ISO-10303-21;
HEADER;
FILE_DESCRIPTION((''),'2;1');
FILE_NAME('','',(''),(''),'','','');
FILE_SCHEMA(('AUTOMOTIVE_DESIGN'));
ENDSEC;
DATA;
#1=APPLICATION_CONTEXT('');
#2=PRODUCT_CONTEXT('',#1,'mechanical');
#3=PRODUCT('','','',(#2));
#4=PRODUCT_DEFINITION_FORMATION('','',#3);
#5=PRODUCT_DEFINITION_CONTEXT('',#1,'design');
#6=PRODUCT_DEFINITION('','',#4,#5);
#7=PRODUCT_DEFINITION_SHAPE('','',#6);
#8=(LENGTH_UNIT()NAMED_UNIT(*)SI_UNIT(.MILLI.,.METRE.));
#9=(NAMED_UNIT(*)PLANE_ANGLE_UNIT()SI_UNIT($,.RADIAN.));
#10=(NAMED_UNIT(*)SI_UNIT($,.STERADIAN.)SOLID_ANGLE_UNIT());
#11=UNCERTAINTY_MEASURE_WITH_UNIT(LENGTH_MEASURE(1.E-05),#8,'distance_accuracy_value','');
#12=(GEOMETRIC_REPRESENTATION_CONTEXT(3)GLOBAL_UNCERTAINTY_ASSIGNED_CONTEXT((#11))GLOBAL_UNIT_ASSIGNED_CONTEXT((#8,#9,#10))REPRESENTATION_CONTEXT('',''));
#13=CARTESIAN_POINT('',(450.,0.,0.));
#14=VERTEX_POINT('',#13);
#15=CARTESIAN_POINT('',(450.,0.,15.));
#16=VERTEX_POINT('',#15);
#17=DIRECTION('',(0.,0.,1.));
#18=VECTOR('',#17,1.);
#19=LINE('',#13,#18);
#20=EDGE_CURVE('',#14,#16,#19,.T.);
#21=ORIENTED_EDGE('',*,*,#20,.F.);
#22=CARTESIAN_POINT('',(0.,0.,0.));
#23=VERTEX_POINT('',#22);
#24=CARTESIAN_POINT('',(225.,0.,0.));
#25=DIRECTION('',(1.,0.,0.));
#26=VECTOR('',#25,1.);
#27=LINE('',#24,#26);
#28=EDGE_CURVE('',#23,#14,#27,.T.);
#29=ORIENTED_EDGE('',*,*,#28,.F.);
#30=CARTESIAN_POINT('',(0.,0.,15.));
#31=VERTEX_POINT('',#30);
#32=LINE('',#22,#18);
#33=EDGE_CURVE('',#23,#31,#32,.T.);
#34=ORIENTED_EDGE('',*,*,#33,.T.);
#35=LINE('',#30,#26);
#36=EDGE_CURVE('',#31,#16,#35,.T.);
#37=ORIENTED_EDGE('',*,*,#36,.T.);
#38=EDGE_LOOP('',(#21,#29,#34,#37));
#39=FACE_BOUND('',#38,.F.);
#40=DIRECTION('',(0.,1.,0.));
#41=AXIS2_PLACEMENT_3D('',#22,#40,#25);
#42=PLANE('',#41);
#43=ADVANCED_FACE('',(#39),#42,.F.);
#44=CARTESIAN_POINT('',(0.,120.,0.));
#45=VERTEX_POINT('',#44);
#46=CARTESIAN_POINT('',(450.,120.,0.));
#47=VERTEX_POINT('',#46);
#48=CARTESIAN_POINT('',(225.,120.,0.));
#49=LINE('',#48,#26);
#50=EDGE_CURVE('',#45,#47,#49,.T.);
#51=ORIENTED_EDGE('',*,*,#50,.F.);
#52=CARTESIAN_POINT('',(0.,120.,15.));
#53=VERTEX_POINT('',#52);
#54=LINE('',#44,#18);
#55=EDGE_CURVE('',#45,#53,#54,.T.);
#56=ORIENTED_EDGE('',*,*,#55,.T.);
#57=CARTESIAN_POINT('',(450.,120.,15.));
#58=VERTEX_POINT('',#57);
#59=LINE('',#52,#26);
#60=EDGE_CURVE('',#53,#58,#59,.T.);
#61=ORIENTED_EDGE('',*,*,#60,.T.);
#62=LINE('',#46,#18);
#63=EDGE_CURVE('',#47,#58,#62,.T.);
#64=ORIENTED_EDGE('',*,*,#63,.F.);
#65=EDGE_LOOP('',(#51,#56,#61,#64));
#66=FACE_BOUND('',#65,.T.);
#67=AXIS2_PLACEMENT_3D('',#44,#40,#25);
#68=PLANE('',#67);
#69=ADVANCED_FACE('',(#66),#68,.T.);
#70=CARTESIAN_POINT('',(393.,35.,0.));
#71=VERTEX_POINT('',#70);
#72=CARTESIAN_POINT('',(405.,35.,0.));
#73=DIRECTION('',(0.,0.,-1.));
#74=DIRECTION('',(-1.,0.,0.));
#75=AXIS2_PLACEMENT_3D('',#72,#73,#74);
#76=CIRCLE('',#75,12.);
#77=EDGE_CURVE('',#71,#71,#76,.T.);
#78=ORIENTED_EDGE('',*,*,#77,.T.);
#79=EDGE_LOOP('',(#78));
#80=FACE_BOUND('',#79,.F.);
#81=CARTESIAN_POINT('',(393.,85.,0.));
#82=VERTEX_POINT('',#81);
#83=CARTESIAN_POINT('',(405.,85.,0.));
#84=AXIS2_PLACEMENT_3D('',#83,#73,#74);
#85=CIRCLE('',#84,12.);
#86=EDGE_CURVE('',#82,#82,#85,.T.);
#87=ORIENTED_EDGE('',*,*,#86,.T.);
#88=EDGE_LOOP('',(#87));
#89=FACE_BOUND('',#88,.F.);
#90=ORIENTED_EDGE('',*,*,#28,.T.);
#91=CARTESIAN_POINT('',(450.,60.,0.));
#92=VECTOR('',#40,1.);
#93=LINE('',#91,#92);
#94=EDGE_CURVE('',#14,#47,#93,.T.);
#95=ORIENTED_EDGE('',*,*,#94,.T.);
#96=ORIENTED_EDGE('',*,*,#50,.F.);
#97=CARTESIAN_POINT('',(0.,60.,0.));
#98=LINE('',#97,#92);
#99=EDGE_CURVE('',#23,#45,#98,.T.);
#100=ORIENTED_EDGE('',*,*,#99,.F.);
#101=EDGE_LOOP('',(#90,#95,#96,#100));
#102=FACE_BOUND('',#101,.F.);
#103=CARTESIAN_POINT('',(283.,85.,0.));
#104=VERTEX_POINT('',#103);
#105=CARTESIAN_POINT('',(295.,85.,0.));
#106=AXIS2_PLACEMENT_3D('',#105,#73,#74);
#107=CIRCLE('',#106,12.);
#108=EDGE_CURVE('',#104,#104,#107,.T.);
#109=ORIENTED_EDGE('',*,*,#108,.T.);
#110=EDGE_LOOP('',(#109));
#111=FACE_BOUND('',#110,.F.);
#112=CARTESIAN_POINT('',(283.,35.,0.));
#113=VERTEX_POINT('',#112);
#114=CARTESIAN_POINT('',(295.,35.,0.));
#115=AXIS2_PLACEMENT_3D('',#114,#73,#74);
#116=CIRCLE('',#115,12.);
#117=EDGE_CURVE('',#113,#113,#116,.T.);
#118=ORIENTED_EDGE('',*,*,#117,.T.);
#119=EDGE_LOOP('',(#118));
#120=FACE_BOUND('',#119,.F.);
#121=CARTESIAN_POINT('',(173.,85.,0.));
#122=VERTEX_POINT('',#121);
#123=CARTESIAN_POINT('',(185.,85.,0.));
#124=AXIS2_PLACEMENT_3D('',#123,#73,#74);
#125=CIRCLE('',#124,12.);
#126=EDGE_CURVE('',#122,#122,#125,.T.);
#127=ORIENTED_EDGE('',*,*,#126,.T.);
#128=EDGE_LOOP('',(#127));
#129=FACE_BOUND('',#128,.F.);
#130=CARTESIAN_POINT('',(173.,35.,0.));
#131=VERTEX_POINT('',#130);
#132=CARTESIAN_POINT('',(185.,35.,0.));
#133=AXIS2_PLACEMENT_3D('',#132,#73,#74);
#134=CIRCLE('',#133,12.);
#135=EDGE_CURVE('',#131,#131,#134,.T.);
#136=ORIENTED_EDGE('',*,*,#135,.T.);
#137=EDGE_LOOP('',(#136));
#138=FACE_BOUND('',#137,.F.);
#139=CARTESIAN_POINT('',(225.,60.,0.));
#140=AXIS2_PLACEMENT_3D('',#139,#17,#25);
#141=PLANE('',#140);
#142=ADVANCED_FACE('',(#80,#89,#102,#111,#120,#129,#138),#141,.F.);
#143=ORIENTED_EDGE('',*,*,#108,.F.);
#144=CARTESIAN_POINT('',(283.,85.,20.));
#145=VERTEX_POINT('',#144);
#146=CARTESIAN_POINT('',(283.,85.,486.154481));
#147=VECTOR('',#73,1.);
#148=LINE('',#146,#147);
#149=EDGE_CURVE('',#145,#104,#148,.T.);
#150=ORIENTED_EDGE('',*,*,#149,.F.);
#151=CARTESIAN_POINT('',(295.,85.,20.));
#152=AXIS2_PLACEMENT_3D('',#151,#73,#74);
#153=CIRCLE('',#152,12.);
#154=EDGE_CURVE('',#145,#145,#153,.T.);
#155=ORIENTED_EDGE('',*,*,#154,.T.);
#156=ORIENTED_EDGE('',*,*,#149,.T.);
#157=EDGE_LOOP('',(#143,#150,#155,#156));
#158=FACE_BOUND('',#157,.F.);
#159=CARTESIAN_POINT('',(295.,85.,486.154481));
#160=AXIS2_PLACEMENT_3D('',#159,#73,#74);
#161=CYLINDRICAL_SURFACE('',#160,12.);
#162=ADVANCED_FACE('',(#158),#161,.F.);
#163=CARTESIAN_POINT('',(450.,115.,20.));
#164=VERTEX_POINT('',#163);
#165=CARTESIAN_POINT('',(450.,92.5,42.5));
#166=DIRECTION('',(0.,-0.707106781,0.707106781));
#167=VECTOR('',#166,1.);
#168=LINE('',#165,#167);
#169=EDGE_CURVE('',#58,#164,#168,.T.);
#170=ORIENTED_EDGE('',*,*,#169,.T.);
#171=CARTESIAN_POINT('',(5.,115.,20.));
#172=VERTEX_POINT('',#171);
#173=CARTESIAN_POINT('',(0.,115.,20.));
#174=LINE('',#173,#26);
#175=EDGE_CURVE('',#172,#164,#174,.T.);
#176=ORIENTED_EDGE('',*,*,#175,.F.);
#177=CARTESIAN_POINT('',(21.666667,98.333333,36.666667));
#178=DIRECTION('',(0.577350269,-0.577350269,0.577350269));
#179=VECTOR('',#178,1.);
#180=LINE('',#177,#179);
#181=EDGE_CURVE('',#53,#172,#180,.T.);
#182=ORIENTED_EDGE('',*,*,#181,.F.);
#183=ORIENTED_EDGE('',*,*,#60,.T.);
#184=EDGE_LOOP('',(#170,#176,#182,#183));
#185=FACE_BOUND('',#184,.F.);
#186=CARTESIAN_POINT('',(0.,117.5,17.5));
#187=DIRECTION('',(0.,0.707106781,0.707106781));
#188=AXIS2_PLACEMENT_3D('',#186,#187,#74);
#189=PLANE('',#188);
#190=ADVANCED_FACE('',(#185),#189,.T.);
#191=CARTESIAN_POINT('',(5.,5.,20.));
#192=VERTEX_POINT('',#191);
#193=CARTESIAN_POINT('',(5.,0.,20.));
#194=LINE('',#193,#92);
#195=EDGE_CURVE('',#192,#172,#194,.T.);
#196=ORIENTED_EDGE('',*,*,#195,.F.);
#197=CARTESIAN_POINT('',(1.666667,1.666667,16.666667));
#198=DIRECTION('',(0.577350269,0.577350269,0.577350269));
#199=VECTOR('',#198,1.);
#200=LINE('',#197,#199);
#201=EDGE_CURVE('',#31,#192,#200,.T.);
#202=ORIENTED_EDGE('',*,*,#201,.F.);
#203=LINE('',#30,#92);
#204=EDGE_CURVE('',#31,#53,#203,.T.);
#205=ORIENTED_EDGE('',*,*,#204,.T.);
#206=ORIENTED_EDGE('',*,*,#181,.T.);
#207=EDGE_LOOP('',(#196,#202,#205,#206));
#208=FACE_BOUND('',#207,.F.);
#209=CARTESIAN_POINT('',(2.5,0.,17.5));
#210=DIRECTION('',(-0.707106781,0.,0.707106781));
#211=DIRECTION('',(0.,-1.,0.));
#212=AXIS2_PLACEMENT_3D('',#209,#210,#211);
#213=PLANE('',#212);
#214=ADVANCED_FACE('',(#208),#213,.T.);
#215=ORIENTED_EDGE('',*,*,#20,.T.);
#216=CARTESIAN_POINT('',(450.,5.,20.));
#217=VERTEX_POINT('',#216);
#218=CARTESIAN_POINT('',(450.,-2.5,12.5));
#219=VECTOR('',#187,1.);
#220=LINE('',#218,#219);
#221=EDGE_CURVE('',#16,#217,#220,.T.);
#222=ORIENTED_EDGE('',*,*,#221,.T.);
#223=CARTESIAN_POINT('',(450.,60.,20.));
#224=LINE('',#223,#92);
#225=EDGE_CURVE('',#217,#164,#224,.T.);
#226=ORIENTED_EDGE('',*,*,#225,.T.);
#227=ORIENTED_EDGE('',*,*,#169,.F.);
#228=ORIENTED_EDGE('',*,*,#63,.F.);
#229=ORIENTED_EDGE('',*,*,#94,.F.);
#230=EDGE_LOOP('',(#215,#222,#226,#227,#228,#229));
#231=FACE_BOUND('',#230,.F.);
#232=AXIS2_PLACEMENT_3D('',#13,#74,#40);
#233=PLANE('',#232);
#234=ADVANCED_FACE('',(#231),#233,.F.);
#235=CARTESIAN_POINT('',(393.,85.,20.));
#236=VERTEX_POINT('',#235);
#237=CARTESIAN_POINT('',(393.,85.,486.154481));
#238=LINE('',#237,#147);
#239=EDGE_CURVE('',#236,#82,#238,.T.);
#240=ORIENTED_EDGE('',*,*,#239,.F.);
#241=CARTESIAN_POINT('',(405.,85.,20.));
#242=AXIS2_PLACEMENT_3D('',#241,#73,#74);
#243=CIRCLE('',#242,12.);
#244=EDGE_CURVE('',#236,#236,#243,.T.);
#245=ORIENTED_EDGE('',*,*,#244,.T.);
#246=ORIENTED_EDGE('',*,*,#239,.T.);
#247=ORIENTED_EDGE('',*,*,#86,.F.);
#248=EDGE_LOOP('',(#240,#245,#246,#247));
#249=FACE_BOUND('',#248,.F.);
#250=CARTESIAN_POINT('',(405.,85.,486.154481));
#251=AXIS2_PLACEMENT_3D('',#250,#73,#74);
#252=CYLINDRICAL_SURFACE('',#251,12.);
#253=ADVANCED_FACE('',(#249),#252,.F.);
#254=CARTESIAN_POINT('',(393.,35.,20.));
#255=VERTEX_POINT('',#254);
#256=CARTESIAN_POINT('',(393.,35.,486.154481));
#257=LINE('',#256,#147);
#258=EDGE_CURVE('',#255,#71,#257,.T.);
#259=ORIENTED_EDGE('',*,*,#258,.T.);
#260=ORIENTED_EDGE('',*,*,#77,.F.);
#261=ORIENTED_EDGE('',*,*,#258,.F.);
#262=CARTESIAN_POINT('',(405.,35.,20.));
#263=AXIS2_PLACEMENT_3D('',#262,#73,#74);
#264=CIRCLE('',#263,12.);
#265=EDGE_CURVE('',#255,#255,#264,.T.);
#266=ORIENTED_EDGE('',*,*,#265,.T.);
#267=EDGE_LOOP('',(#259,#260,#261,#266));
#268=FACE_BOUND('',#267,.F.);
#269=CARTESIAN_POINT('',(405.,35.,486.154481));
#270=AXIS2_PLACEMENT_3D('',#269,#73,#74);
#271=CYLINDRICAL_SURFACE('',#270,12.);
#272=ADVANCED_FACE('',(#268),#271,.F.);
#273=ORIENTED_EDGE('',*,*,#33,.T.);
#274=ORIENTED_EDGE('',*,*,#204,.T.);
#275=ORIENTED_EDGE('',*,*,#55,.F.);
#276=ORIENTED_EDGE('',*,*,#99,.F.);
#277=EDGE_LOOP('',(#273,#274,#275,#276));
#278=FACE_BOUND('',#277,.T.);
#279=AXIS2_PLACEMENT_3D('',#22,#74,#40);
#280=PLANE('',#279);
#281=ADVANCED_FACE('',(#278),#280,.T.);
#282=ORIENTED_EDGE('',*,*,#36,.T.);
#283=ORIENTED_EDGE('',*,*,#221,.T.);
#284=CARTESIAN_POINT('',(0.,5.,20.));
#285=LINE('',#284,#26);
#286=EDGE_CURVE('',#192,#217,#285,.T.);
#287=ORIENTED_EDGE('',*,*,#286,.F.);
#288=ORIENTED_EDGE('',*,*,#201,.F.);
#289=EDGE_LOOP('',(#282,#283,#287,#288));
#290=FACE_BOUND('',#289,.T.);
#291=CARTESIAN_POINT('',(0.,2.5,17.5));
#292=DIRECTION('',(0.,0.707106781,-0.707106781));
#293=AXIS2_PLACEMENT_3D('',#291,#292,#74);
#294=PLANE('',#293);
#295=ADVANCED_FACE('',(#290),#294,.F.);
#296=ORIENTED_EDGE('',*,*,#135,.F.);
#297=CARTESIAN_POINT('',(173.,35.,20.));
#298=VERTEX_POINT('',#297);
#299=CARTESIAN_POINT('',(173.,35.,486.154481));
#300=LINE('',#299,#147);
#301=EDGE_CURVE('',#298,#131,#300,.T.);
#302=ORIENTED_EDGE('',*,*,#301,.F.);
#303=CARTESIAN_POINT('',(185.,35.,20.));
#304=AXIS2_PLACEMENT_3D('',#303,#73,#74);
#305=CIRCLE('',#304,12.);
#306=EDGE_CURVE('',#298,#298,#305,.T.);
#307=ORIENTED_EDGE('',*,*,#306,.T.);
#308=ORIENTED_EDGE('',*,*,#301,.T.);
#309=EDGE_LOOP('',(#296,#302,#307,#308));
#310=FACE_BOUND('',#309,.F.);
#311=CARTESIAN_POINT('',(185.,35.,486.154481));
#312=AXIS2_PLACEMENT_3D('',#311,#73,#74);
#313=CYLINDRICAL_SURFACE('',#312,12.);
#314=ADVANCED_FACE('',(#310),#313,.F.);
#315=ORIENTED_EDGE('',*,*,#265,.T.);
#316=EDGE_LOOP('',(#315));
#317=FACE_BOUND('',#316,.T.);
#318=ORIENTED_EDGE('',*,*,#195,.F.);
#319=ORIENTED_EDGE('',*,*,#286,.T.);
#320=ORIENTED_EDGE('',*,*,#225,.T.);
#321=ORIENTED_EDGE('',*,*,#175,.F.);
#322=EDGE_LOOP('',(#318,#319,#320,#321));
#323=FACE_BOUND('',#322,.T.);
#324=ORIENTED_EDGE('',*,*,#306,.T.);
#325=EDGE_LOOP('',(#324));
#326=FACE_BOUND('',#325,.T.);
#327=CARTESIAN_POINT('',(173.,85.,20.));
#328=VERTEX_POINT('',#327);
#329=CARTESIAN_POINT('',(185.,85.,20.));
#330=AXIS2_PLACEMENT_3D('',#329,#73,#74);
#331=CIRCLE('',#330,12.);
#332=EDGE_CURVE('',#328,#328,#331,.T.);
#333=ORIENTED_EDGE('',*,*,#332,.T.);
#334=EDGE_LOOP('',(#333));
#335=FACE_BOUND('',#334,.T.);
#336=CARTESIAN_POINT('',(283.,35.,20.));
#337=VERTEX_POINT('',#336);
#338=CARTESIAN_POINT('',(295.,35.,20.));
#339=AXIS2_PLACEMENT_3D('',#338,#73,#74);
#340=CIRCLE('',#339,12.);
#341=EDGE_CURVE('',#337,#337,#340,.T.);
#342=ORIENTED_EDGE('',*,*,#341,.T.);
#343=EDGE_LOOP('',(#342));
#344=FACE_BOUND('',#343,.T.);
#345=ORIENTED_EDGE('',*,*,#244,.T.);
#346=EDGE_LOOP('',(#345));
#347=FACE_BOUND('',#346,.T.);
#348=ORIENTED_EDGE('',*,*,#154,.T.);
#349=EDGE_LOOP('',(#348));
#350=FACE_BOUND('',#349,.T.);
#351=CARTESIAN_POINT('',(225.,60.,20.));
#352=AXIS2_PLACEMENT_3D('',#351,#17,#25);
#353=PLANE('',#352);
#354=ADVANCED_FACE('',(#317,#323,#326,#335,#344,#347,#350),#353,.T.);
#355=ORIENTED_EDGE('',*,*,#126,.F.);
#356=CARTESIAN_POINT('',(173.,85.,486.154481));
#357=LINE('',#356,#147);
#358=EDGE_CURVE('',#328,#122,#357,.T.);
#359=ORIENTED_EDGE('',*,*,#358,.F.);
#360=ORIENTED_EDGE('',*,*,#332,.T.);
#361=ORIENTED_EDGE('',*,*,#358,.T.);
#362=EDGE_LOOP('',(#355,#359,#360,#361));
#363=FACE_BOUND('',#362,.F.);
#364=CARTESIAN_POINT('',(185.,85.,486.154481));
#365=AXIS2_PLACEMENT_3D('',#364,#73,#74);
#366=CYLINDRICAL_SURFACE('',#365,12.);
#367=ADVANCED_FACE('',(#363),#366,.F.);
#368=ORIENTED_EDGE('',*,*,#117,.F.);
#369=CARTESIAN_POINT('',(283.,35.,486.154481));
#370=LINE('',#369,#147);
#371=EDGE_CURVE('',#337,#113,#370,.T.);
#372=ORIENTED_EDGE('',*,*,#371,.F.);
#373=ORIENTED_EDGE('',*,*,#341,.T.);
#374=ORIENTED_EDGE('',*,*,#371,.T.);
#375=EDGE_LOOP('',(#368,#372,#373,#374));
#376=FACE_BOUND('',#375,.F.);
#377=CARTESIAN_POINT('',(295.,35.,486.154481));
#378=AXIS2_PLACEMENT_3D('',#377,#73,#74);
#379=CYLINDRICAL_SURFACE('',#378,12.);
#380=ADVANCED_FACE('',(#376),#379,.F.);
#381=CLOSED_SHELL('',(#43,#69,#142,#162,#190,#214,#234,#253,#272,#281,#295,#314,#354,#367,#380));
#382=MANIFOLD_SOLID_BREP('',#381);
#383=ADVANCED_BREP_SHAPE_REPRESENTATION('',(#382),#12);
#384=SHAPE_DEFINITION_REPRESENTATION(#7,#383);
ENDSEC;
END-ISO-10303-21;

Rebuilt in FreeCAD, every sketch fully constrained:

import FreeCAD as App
import Part
import Sketcher


def edges_at(feature, points):
    """Names of the edges that pass closest to the given points."""
    edges = feature.Shape.Edges
    near = lambda p: min(range(len(edges)), key=lambda i: edges[i].distToShape(Part.Vertex(*p))[0])
    return sorted({f"Edge{near(p) + 1}" for p in points})


def add_polygon(sketch, points):
    """Adds a closed chain of lines whose ends are joined by coincident constraints."""
    first, n = sketch.GeometryCount, len(points)
    for a, b in zip(points, points[1:] + points[:1]):
        sketch.addGeometry(Part.LineSegment(App.Vector(*a, 0), App.Vector(*b, 0)), False)
    for i in range(n):
        sketch.addConstraint(Sketcher.Constraint("Coincident", first + i, 2, first + (i + 1) % n, 1))

doc = App.newDocument("Part")
body = doc.addObject("PartDesign::Body", "Body")

sketch1 = doc.addObject("Sketcher::SketchObject", "Sketch")
body.addObject(sketch1)
sketch1.AttachmentSupport = (doc.XY_Plane, [""])
sketch1.MapMode = "FlatFace"
add_polygon(sketch1, [(0, 120), (0, 0), (450, 0), (450, 120)])
sketch1.addConstraint([
    Sketcher.Constraint("Vertical", 0),
    Sketcher.Constraint("Horizontal", 1),
    Sketcher.Constraint("Vertical", 2),
    Sketcher.Constraint("Horizontal", 3),
    Sketcher.Constraint("Coincident", 0, 2, -1, 1),
    Sketcher.Constraint("DistanceX", 1, 1, 1, 2, 450.0),
    Sketcher.Constraint("DistanceY", 0, 2, 0, 1, 120.0),
])
pad1 = doc.addObject("PartDesign::Pad", "Pad")
body.addObject(pad1)
pad1.Profile = sketch1
pad1.Length = 20

sketch2 = doc.addObject("Sketcher::SketchObject", "Sketch001")
body.addObject(sketch2)
sketch2.AttachmentSupport = (doc.XY_Plane, [""])
sketch2.MapMode = "FlatFace"
sketch2.AttachmentOffset = App.Placement(App.Vector(0, 0, 20), App.Rotation())
sketch2.addGeometry([
    Part.Circle(App.Vector(185, 85, 0), App.Vector(0, 0, 1), 12),
    Part.Circle(App.Vector(185, 35, 0), App.Vector(0, 0, 1), 12),
    Part.Circle(App.Vector(295, 85, 0), App.Vector(0, 0, 1), 12),
    Part.Circle(App.Vector(295, 35, 0), App.Vector(0, 0, 1), 12),
    Part.Circle(App.Vector(405, 85, 0), App.Vector(0, 0, 1), 12),
    Part.Circle(App.Vector(405, 35, 0), App.Vector(0, 0, 1), 12),
], False)
sketch2.addConstraint([
    Sketcher.Constraint("Equal", 0, 1),
    Sketcher.Constraint("Equal", 1, 2),
    Sketcher.Constraint("Equal", 2, 3),
    Sketcher.Constraint("Equal", 3, 4),
    Sketcher.Constraint("Equal", 4, 5),
    Sketcher.Constraint("Horizontal", 0, 3, 2, 3),
    Sketcher.Constraint("Horizontal", 1, 3, 3, 3),
    Sketcher.Constraint("Horizontal", 2, 3, 4, 3),
    Sketcher.Constraint("Horizontal", 3, 3, 5, 3),
    Sketcher.Constraint("Vertical", 0, 3, 1, 3),
    Sketcher.Constraint("Vertical", 2, 3, 3, 3),
    Sketcher.Constraint("Vertical", 4, 3, 5, 3),
    Sketcher.Constraint("Diameter", 0, 24.0),
    Sketcher.Constraint("DistanceX", -1, 1, 0, 3, 185.0),
    Sketcher.Constraint("DistanceY", -1, 1, 0, 3, 85.0),
    Sketcher.Constraint("DistanceY", -1, 1, 1, 3, 35.0),
    Sketcher.Constraint("DistanceX", -1, 1, 2, 3, 295.0),
    Sketcher.Constraint("DistanceX", -1, 1, 4, 3, 405.0),
])
doc.recompute()
hole = doc.addObject("PartDesign::Hole", "Hole")
body.addObject(hole)
hole.Profile = sketch2
hole.ThreadType = "None"
hole.Diameter = 24
hole.DepthType = "ThroughAll"
doc.recompute()

chamfer = doc.addObject("PartDesign::Chamfer", "Chamfer")
body.addObject(chamfer)
chamfer.Base = (hole, edges_at(hole, [(225, 120, 20), (225, 0, 20), (0, 60, 20)]))
chamfer.Size = 5

doc.recompute()
